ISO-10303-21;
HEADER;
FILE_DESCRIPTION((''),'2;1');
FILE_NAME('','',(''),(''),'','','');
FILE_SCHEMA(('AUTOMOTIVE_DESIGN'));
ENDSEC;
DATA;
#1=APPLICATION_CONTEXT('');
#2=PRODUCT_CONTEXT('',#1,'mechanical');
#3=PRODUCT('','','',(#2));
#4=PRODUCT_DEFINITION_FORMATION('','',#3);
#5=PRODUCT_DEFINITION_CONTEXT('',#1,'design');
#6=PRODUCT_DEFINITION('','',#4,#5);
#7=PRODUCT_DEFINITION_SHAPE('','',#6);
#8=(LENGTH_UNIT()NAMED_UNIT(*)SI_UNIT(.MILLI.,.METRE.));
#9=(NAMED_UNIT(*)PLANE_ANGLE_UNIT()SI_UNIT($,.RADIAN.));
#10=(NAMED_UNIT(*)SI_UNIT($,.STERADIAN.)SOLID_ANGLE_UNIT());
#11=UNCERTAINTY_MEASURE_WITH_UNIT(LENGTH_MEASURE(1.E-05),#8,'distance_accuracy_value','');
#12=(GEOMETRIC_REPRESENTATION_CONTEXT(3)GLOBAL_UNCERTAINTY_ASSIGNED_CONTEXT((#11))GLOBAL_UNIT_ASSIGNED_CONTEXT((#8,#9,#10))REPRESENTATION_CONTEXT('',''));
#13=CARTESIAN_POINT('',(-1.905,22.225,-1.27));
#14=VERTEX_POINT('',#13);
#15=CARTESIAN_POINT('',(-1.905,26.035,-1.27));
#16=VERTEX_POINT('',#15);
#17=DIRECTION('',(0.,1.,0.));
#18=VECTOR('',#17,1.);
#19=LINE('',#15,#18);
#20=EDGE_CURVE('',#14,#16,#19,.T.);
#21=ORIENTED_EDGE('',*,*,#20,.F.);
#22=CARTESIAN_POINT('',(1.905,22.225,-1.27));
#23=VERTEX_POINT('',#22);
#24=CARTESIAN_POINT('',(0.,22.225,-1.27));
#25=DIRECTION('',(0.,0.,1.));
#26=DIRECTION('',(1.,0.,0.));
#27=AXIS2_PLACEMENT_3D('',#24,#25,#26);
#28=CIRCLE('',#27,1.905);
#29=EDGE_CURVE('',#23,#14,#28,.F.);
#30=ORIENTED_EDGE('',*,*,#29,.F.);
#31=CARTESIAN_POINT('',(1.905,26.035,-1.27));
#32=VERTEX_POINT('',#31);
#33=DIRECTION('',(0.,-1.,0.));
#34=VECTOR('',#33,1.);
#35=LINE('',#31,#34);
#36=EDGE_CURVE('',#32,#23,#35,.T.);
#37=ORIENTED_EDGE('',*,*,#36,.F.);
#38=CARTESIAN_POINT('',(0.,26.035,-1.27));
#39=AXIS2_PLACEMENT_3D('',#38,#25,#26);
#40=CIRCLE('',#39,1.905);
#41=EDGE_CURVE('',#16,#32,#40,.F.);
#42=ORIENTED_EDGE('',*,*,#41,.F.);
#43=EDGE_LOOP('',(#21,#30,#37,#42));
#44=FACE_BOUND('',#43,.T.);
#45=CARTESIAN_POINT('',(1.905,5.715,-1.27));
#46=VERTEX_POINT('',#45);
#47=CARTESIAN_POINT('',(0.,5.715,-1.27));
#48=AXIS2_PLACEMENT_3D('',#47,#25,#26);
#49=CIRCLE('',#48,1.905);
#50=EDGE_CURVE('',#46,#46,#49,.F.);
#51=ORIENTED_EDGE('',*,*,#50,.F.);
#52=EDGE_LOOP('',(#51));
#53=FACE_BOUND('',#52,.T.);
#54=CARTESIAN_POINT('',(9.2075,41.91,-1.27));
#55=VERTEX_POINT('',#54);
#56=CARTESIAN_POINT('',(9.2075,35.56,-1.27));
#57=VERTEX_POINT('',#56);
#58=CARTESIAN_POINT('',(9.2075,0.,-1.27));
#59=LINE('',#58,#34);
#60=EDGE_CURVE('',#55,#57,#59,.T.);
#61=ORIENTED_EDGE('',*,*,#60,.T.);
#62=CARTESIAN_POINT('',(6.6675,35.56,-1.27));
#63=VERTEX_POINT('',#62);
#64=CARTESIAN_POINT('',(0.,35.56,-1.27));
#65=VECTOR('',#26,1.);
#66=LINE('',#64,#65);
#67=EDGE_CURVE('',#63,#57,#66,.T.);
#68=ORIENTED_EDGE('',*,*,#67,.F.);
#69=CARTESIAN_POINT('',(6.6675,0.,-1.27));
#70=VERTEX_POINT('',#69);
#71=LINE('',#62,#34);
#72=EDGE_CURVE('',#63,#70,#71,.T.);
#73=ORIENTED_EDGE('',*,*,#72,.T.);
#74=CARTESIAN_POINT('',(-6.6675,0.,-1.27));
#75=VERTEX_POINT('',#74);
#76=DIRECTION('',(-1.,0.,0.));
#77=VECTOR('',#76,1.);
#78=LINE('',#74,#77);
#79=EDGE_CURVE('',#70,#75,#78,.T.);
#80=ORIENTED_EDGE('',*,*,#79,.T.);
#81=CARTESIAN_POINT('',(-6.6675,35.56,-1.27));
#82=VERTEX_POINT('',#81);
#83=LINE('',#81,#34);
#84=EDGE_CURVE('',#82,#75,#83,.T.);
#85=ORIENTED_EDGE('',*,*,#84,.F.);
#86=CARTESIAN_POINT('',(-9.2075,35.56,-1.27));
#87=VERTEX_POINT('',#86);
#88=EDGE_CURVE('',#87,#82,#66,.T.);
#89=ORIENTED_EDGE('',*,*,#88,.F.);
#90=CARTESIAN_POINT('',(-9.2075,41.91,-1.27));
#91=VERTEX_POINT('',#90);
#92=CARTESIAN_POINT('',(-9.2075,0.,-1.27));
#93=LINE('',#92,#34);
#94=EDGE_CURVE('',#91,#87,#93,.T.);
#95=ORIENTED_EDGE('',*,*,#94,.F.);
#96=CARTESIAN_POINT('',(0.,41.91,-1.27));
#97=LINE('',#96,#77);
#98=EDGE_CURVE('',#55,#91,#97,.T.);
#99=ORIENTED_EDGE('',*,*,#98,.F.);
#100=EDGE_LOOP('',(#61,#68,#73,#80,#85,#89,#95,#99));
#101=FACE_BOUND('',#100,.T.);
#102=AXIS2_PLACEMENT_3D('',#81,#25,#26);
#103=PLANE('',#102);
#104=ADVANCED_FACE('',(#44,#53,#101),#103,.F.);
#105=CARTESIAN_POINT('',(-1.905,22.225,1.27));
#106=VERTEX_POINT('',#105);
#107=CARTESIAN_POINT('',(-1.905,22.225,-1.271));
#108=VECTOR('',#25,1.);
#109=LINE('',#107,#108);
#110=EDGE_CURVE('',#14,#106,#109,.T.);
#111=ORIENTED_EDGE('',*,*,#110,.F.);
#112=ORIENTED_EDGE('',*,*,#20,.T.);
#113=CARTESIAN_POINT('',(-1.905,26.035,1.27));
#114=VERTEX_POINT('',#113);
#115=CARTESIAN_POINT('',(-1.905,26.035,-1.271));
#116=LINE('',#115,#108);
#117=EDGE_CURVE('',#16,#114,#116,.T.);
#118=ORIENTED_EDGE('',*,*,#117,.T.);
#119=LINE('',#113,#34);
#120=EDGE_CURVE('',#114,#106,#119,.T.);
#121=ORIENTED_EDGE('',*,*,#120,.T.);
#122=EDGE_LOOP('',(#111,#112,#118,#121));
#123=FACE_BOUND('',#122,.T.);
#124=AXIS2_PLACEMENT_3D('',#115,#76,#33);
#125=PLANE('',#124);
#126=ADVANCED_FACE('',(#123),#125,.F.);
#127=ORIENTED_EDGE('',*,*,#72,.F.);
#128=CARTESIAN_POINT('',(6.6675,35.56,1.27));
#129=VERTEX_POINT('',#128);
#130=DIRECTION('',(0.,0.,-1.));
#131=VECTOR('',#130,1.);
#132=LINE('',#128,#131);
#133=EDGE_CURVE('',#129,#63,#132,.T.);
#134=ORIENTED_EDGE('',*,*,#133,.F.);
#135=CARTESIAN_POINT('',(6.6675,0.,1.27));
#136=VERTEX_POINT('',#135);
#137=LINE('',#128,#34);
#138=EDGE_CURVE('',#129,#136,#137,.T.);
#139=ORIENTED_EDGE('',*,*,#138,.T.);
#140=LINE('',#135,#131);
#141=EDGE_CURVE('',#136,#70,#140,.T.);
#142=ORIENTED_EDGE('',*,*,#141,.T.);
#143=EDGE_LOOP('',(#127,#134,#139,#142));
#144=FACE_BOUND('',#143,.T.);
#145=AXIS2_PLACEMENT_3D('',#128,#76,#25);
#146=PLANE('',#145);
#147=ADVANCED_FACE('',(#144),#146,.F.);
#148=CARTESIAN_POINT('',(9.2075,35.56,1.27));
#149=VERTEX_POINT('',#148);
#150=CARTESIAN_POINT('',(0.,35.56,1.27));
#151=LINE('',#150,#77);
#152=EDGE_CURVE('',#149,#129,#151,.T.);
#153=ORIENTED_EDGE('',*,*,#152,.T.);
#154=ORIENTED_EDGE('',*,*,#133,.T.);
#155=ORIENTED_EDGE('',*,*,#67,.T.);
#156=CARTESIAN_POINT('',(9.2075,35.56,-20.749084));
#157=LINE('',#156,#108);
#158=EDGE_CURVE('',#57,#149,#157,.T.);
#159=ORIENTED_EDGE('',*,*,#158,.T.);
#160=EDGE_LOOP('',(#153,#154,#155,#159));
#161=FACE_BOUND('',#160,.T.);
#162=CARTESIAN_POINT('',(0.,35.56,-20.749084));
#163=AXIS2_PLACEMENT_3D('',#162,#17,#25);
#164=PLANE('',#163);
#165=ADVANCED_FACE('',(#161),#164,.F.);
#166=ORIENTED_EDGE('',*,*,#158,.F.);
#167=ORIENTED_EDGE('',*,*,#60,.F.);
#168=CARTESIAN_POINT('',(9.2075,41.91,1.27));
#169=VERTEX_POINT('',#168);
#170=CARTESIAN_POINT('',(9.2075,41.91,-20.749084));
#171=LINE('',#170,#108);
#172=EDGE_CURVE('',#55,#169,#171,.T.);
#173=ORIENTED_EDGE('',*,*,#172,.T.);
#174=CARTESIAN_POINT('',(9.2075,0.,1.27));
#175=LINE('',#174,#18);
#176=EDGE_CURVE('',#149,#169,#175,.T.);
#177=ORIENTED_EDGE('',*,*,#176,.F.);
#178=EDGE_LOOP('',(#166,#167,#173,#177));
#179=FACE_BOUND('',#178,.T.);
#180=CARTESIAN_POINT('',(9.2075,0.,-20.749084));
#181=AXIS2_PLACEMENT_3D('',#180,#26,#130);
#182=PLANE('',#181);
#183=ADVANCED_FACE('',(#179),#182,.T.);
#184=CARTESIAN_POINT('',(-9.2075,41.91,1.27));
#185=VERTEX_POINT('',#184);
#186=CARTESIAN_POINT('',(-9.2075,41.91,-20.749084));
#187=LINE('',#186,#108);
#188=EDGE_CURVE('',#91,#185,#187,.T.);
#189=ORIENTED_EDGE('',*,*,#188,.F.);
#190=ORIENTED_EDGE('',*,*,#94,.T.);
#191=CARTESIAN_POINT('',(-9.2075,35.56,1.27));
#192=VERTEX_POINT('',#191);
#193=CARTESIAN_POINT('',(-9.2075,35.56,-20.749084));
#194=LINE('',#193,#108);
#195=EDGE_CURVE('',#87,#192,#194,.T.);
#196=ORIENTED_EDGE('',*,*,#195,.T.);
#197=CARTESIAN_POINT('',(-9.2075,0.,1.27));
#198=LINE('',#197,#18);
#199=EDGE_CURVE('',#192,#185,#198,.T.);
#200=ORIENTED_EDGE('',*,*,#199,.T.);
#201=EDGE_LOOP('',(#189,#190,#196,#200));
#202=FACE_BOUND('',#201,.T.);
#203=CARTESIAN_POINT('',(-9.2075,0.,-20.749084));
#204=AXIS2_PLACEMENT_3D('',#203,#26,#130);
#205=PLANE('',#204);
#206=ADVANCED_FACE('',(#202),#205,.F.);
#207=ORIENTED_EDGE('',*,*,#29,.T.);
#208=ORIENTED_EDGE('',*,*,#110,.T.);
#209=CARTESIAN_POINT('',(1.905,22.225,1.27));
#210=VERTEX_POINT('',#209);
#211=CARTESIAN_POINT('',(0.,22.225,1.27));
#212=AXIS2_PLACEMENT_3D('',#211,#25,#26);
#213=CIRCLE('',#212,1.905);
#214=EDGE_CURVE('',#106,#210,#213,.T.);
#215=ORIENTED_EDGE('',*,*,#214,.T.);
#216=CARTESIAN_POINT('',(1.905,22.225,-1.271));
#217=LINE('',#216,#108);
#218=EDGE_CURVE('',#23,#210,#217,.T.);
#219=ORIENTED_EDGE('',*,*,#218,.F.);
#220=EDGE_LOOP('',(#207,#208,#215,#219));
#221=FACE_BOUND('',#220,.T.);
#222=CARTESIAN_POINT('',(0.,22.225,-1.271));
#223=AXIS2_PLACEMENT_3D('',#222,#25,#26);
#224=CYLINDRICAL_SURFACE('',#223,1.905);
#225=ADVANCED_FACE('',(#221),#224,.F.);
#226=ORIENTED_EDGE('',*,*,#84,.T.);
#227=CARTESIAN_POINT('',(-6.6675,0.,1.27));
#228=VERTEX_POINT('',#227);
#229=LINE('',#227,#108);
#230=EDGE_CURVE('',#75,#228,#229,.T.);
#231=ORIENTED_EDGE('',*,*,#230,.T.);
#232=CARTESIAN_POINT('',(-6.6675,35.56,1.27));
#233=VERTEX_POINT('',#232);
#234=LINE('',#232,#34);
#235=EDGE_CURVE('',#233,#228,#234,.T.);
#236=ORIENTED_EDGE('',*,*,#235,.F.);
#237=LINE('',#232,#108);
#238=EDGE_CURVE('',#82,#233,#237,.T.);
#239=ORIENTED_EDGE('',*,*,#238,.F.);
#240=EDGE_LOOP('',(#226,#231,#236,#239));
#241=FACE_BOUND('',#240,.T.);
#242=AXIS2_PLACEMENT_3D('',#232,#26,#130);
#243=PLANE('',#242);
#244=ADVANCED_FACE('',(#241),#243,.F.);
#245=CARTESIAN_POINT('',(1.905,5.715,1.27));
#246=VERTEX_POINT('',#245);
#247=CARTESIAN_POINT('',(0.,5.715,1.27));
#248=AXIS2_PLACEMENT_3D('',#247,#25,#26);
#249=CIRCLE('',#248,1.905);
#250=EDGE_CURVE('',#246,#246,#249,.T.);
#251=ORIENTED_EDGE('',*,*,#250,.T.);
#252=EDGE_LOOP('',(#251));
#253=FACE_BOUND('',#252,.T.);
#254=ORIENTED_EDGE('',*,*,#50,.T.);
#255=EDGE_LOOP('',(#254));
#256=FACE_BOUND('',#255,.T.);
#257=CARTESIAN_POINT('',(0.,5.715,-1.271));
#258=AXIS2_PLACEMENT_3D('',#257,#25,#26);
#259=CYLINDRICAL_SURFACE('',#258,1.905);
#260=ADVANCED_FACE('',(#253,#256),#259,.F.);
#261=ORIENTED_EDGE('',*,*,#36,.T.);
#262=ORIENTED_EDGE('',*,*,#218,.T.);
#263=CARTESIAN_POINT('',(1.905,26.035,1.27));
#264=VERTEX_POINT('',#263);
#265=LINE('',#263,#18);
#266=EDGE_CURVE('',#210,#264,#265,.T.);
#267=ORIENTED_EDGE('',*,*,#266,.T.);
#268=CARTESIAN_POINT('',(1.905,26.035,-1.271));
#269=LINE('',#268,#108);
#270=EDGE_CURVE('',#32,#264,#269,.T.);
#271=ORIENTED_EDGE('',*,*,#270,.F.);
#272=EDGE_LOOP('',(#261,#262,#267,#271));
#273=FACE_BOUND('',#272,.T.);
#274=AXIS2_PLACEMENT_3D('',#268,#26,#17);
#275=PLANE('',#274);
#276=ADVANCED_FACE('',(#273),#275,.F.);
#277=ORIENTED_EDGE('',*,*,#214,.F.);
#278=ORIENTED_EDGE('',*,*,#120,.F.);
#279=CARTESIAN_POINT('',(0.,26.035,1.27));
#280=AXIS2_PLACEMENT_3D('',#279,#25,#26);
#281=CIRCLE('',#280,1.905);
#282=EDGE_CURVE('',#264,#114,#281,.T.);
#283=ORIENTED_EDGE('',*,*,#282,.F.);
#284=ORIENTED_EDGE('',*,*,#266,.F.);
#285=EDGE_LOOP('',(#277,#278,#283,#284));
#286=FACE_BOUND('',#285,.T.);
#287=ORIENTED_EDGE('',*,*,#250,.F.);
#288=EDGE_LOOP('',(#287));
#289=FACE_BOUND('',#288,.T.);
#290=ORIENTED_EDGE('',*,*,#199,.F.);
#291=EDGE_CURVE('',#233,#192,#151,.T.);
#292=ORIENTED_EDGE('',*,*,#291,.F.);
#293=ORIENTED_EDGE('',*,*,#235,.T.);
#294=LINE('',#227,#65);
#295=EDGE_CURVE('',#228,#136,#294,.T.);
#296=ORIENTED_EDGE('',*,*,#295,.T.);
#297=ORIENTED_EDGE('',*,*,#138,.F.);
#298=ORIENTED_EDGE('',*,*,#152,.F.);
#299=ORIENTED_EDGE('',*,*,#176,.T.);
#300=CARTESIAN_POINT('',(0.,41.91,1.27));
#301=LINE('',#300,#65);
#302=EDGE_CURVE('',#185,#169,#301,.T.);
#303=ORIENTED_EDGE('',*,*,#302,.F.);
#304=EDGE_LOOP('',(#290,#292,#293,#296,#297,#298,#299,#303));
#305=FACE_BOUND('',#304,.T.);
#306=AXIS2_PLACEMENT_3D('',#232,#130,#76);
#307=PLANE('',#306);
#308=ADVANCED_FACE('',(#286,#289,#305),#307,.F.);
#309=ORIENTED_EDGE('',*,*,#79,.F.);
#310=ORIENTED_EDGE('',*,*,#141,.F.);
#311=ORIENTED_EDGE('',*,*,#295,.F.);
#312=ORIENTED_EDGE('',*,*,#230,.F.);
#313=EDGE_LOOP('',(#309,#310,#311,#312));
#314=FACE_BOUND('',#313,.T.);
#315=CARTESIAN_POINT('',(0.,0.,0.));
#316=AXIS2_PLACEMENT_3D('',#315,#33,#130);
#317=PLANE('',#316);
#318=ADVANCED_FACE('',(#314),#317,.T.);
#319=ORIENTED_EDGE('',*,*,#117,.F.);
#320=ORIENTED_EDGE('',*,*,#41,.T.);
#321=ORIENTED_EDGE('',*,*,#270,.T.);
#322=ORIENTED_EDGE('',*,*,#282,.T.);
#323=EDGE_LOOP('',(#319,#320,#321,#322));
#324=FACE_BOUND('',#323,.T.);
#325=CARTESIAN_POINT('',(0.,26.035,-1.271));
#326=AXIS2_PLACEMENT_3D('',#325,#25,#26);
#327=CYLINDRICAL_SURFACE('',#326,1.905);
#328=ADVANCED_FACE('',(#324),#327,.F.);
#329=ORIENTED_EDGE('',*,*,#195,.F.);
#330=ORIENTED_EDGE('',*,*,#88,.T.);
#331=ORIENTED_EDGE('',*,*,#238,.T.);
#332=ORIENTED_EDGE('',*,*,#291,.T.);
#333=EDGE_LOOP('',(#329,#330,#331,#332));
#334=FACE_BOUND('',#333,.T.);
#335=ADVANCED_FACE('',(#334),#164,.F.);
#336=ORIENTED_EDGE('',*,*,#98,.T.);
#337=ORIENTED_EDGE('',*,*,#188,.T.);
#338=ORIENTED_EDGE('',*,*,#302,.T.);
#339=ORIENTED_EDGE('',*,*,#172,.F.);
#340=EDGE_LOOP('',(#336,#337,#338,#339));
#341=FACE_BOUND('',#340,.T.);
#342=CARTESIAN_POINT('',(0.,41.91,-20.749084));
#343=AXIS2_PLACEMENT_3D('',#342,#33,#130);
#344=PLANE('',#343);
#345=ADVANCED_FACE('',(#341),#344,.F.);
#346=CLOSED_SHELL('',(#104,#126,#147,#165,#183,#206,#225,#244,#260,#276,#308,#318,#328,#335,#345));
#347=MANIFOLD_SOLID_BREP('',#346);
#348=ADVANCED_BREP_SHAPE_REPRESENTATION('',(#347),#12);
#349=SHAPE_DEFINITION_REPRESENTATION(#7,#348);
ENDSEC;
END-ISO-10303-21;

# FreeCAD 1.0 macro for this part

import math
import FreeCAD as App
import Part
import Sketcher
from FreeCAD import Vector
Q = App.Units.Quantity


def add_polygon(sketch, points):
    """Adds a closed chain of lines whose ends are joined by coincident constraints."""
    first, n = sketch.GeometryCount, len(points)
    for a, b in zip(points, points[1:] + points[:1]):
        sketch.addGeometry(Part.LineSegment(App.Vector(*a, 0), App.Vector(*b, 0)), False)
    for i in range(n):
        sketch.addConstraint(Sketcher.Constraint("Coincident", first + i, 2, first + (i + 1) % n, 1))

doc = App.newDocument("Part")
body = doc.addObject("PartDesign::Body", "Body")

# Sketch on XZ plane
sketch1 = body.newObject("Sketcher::SketchObject", "Sketch")
sketch1.AttachmentSupport = (doc.getObject("XZ_Plane"), [""])
sketch1.MapMode = "FlatFace"
add_polygon(sketch1, [(-6.7, -1.3), (-6.7, 1.3), (6.7, 1.3), (6.7, -1.3)])  # lines 0-3
sketch1.addConstraint(Sketcher.Constraint("Vertical", 0))
sketch1.addConstraint(Sketcher.Constraint("Horizontal", 1))
sketch1.addConstraint(Sketcher.Constraint("Vertical", 2))
sketch1.addConstraint(Sketcher.Constraint("Horizontal", 3))
sketch1.addConstraint(Sketcher.Constraint("Symmetric", 0, 2, 2, 2, -1, 1))
sketch1.addConstraint(Sketcher.Constraint("DistanceY", 0, 1, 0, 2, Q("0.1 in")))
sketch1.addConstraint(Sketcher.Constraint("DistanceX", 1, 1, 1, 2, Q("0.525 in")))
pad1 = body.newObject("PartDesign::Pad", "Pad")
pad1.Profile = sketch1
pad1.Length = Q("1.4 in")
pad1.Reversed = True

# Sketch on XY plane
sketch2 = body.newObject("Sketcher::SketchObject", "Sketch001")
sketch2.AttachmentSupport = (doc.getObject("XY_Plane"), [""])
sketch2.MapMode = "FlatFace"
sketch2.AttachmentOffset = App.Placement(Vector(0, 0, 0.05 * 25.4), App.Rotation())
add_polygon(sketch2, [(-9, 36), (9, 36), (9, 42), (-9, 42)])  # lines 0-3
sketch2.addConstraint(Sketcher.Constraint("Horizontal", 0))
sketch2.addConstraint(Sketcher.Constraint("Vertical", 1))
sketch2.addConstraint(Sketcher.Constraint("Horizontal", 2))
sketch2.addConstraint(Sketcher.Constraint("Vertical", 3))
sketch2.addConstraint(Sketcher.Constraint("DistanceY", 1, 1, 1, 2, Q("0.25 in")))
sketch2.addConstraint(Sketcher.Constraint("DistanceY", -1, 1, 0, 2, Q("1.4 in")))
sketch2.addConstraint(Sketcher.Constraint("DistanceX", 0, 1, 0, 2, Q("0.725 in")))
sketch2.addConstraint(Sketcher.Constraint("DistanceX", -1, 1, 0, 2, Q("0.3625 in")))
pad2 = body.newObject("PartDesign::Pad", "Pad001")
pad2.Profile = sketch2
pad2.Length = Q("0.1 in")
pad2.Reversed = True

# Sketch on XY plane
sketch3 = body.newObject("Sketcher::SketchObject", "Sketch002")
sketch3.AttachmentSupport = (doc.getObject("XY_Plane"), [""])
sketch3.MapMode = "FlatFace"
sketch3.AttachmentOffset = App.Placement(Vector(0, 0, 0.05 * 25.4), App.Rotation())
sketch3.addGeometry(Part.Circle(Vector(0, 5.7, 0), Vector(0, 0, 1), 1.9), False)
sketch3.addConstraint(Sketcher.Constraint("PointOnObject", 0, 3, -2))
sketch3.addConstraint(Sketcher.Constraint("Diameter", 0, Q("0.15 in")))
sketch3.addConstraint(Sketcher.Constraint("DistanceY", -1, 1, 0, 3, Q("0.225 in")))
pocket1 = body.newObject("PartDesign::Pocket", "Pocket")
pocket1.Profile = sketch3
pocket1.Type = "UpToFirst"

# Sketch on XY plane
sketch4 = body.newObject("Sketcher::SketchObject", "Sketch003")
sketch4.AttachmentSupport = (doc.getObject("XY_Plane"), [""])
sketch4.MapMode = "FlatFace"
sketch4.AttachmentOffset = App.Placement(Vector(0, 0, 0.05 * 25.4), App.Rotation())
sketch4.addGeometry(Part.LineSegment(Vector(1.9, 22.2, 0), Vector(1.9, 26, 0)), False)
sketch4.addGeometry(Part.ArcOfCircle(Part.Circle(Vector(0, 26, 0), Vector(0, 0, 1), 1.9), math.radians(0), math.radians(180)), False)
sketch4.addGeometry(Part.LineSegment(Vector(-1.9, 26, 0), Vector(-1.9, 22.2, 0)), False)
sketch4.addGeometry(Part.ArcOfCircle(Part.Circle(Vector(0, 22.2, 0), Vector(0, 0, 1), 1.9), math.radians(180), math.radians(360)), False)
sketch4.addConstraint(Sketcher.Constraint("Tangent", 0, 2, 1, 1))
sketch4.addConstraint(Sketcher.Constraint("Tangent", 1, 2, 2, 1))
sketch4.addConstraint(Sketcher.Constraint("Tangent", 2, 2, 3, 1))
sketch4.addConstraint(Sketcher.Constraint("Tangent", 3, 2, 0, 1))
sketch4.addConstraint(Sketcher.Constraint("Vertical", 0))
sketch4.addConstraint(Sketcher.Constraint("Vertical", 2))
sketch4.addConstraint(Sketcher.Constraint("PointOnObject", 1, 3, -2))
sketch4.addConstraint(Sketcher.Constraint("Radius", 1, Q("0.075 in")))
sketch4.addConstraint(Sketcher.Constraint("DistanceY", 0, 1, 0, 2, Q("0.15 in")))
sketch4.addConstraint(Sketcher.Constraint("DistanceY", -1, 1, 1, 3, Q("1.025 in")))
pocket2 = body.newObject("PartDesign::Pocket", "Pocket001")
pocket2.Profile = sketch4
pocket2.Type = "UpToFirst"

doc.recompute()
